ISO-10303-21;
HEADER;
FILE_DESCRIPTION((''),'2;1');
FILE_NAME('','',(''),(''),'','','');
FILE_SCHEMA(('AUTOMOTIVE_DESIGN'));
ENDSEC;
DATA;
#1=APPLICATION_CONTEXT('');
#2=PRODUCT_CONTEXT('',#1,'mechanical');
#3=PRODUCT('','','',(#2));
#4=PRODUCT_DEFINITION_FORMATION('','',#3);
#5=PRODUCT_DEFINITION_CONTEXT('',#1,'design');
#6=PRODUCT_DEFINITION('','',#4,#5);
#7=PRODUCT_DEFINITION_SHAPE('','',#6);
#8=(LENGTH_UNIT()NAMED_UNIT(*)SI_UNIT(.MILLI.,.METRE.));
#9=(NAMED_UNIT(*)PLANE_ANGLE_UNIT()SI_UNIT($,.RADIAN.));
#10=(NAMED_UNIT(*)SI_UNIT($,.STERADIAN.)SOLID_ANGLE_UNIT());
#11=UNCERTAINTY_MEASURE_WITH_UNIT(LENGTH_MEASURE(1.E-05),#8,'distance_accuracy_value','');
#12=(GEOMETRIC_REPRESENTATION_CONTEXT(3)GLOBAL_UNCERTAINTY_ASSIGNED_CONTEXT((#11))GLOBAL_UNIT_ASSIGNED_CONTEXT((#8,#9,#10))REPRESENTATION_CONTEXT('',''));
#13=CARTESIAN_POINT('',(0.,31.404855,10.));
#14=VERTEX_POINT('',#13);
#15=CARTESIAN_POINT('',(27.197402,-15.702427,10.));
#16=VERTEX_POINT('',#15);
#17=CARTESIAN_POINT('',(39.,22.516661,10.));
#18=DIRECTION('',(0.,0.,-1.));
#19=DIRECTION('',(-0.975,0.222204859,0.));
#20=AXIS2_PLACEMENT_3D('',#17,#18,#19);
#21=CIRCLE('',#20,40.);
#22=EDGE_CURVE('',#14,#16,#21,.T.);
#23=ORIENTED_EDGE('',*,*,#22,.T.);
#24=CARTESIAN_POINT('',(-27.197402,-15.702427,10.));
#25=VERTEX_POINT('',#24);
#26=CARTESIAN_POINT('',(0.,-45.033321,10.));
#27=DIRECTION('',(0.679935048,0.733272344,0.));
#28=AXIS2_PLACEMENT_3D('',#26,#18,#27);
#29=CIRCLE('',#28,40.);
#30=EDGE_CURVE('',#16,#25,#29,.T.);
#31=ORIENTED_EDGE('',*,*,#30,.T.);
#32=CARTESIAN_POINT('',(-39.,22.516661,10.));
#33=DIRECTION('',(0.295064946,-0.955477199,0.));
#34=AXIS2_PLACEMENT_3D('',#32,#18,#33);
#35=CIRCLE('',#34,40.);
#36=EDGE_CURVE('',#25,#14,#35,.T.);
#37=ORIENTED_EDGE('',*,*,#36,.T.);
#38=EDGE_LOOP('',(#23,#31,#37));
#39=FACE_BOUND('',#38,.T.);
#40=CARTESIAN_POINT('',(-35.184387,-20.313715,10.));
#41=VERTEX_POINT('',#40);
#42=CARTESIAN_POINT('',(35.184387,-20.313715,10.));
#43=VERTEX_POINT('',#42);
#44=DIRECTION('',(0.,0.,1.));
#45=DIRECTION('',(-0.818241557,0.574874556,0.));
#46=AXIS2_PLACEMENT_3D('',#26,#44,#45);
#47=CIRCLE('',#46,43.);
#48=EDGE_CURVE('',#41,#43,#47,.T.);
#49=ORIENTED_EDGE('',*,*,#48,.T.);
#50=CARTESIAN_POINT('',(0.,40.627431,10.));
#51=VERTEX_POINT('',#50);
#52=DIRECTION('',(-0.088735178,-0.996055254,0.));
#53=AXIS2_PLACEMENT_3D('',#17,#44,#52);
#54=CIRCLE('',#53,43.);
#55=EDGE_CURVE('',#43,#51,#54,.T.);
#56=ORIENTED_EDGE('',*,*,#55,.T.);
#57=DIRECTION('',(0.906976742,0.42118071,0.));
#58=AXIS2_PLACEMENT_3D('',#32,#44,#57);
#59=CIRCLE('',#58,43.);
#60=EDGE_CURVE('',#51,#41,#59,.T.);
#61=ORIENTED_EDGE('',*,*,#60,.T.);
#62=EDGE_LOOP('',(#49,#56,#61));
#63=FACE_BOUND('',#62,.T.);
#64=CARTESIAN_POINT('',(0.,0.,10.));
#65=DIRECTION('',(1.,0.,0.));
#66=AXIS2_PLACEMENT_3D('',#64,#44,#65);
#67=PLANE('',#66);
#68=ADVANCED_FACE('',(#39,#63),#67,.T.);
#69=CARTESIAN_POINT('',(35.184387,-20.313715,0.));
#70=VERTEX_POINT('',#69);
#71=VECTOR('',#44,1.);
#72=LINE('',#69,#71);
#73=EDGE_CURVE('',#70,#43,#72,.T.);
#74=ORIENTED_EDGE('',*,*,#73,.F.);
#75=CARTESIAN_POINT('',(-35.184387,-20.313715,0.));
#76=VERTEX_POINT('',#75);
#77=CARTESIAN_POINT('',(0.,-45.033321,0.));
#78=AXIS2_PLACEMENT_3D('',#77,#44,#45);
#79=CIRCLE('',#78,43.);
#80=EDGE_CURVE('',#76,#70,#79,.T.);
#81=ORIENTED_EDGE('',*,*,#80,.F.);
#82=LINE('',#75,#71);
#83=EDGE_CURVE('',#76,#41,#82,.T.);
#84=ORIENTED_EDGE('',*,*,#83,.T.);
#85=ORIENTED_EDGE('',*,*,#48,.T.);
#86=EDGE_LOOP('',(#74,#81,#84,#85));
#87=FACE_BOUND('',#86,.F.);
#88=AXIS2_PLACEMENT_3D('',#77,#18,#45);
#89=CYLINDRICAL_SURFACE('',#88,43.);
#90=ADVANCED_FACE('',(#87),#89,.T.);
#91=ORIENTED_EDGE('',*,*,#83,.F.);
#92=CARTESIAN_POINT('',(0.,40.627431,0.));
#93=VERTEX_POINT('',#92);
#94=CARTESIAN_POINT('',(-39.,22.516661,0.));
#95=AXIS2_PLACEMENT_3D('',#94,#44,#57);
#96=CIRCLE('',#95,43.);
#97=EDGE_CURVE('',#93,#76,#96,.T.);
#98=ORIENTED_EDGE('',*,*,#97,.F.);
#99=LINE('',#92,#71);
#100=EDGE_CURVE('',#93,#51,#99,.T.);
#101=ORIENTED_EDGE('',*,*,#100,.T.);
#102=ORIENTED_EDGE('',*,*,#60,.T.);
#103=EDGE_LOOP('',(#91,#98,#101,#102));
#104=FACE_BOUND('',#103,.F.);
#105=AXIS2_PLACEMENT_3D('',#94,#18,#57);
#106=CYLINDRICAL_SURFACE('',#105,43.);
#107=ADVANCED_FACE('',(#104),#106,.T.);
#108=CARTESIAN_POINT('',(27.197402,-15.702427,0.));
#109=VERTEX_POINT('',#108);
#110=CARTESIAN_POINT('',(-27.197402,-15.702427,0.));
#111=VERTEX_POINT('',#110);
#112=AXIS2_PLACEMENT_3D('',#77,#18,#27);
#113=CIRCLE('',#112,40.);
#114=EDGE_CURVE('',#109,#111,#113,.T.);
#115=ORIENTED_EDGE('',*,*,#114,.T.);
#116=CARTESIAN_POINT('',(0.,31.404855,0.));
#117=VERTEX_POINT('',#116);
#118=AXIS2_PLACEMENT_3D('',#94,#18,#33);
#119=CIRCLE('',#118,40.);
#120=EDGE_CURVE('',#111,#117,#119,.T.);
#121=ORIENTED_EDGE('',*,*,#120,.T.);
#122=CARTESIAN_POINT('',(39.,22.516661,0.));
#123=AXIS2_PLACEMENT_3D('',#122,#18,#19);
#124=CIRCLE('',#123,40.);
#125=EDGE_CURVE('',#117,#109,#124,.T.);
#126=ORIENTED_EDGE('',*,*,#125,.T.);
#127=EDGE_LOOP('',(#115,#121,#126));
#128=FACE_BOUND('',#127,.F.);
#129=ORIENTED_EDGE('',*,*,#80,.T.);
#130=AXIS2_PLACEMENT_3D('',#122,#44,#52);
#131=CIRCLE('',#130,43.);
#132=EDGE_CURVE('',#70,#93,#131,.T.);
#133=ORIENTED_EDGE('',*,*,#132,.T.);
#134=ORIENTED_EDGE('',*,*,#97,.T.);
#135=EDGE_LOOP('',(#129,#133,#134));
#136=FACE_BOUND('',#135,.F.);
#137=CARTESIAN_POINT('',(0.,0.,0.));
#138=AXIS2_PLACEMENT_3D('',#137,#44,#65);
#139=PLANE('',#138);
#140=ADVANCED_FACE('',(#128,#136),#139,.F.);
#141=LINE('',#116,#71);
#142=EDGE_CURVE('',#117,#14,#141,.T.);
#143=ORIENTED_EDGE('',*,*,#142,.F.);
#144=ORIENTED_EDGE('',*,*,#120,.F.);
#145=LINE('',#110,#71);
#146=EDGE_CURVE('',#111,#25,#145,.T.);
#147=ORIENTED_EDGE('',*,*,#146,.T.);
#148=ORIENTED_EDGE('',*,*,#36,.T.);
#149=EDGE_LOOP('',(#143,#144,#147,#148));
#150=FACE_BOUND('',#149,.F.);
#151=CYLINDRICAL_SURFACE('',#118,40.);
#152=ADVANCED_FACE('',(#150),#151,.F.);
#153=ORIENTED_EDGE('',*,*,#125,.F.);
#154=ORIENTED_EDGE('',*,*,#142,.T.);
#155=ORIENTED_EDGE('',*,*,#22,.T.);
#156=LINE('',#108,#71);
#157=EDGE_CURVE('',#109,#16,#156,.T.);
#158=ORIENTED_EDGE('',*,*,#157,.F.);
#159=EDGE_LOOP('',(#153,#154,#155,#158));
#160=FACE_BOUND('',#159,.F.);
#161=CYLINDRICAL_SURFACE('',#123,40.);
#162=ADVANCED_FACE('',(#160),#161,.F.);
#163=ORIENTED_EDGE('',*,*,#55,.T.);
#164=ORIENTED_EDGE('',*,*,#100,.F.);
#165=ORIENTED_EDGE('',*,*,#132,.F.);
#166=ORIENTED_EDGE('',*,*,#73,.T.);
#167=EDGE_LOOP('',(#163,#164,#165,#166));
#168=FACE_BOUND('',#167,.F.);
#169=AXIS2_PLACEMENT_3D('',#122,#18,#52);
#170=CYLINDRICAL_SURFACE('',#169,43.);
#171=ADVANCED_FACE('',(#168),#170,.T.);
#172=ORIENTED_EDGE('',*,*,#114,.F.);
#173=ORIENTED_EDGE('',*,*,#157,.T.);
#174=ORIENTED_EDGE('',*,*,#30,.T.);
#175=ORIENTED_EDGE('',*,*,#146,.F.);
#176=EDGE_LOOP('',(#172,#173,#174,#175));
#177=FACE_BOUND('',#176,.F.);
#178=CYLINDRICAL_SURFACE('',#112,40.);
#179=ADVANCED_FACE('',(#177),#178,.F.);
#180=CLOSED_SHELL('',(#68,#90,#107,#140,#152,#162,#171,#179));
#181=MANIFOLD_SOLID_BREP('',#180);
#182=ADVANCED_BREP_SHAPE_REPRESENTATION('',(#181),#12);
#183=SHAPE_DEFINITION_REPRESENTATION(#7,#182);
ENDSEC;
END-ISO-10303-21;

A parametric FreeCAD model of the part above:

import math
import FreeCAD as App
import Part
import Sketcher
from FreeCAD import Vector

doc = App.newDocument("Part")
body = doc.addObject("PartDesign::Body", "Body")

sketch1 = body.newObject("Sketcher::SketchObject", "Sketch")
sketch1.AttachmentSupport = (doc.getObject("XY_Plane"), [""])
sketch1.MapMode = "FlatFace"
sketch1.addGeometry(Part.ArcOfCircle(Part.Circle(Vector(39, 22.516661, 0), Vector(0, 0, 1), 43), math.radians(-95.090847), math.radians(155.090847)), False)
sketch1.addGeometry(Part.ArcOfCircle(Part.Circle(Vector(-39, 22.516661, 0), Vector(0, 0, 1), 43), math.radians(24.909153), math.radians(275.090847)), False)
sketch1.addGeometry(Part.ArcOfCircle(Part.Circle(Vector(0, -45.033321, 0), Vector(0, 0, 1), 43), math.radians(144.909152), math.radians(395.090848)), False)
sketch1.addGeometry(Part.ArcOfCircle(Part.Circle(Vector(0, -45.033321, 0), Vector(0, 0, 1), 40), math.radians(132.838568), math.radians(407.161432)), False)
sketch1.addGeometry(Part.ArcOfCircle(Part.Circle(Vector(-39, 22.516661, 0), Vector(0, 0, 1), 40), math.radians(12.838568), math.radians(287.161432)), False)
sketch1.addGeometry(Part.ArcOfCircle(Part.Circle(Vector(39, 22.516661, 0), Vector(0, 0, 1), 40), math.radians(-107.161432), math.radians(167.161432)), False)
sketch1.addConstraint(Sketcher.Constraint("Coincident", 0, 2, 1, 1))
sketch1.addConstraint(Sketcher.Constraint("Coincident", 1, 2, 2, 1))
sketch1.addConstraint(Sketcher.Constraint("Coincident", 2, 2, 0, 1))
sketch1.addConstraint(Sketcher.Constraint("Coincident", 3, 1, 4, 2))
sketch1.addConstraint(Sketcher.Constraint("Coincident", 4, 1, 5, 2))
sketch1.addConstraint(Sketcher.Constraint("Coincident", 5, 1, 3, 2))
sketch1.addConstraint(Sketcher.Constraint("Coincident", 3, 3, 2, 3))
sketch1.addConstraint(Sketcher.Constraint("Coincident", 4, 3, 1, 3))
sketch1.addConstraint(Sketcher.Constraint("Coincident", 5, 3, 0, 3))
sketch1.addConstraint(Sketcher.Constraint("Equal", 0, 1))
sketch1.addConstraint(Sketcher.Constraint("Equal", 1, 2))
sketch1.addConstraint(Sketcher.Constraint("Equal", 3, 4))
sketch1.addConstraint(Sketcher.Constraint("Equal", 4, 5))
sketch1.addConstraint(Sketcher.Constraint("Symmetric", 0, 3, 1, 3, -2))
sketch1.addConstraint(Sketcher.Constraint("PointOnObject", 2, 3, -2))
sketch1.addConstraint(Sketcher.Constraint("Radius", 0, 43.0))
sketch1.addConstraint(Sketcher.Constraint("Radius", 3, 40.0))
sketch1.addConstraint(Sketcher.Constraint("DistanceX", -1, 1, 0, 3, 39.0))
sketch1.addConstraint(Sketcher.Constraint("DistanceX", -1, 1, 5, 1, 27.197402))
sketch1.addConstraint(Sketcher.Constraint("DistanceY", -1, 1, 0, 3, 22.516661))
pad1 = body.newObject("PartDesign::Pad", "Pad")
pad1.Profile = sketch1
pad1.Length = 10

doc.recompute()
